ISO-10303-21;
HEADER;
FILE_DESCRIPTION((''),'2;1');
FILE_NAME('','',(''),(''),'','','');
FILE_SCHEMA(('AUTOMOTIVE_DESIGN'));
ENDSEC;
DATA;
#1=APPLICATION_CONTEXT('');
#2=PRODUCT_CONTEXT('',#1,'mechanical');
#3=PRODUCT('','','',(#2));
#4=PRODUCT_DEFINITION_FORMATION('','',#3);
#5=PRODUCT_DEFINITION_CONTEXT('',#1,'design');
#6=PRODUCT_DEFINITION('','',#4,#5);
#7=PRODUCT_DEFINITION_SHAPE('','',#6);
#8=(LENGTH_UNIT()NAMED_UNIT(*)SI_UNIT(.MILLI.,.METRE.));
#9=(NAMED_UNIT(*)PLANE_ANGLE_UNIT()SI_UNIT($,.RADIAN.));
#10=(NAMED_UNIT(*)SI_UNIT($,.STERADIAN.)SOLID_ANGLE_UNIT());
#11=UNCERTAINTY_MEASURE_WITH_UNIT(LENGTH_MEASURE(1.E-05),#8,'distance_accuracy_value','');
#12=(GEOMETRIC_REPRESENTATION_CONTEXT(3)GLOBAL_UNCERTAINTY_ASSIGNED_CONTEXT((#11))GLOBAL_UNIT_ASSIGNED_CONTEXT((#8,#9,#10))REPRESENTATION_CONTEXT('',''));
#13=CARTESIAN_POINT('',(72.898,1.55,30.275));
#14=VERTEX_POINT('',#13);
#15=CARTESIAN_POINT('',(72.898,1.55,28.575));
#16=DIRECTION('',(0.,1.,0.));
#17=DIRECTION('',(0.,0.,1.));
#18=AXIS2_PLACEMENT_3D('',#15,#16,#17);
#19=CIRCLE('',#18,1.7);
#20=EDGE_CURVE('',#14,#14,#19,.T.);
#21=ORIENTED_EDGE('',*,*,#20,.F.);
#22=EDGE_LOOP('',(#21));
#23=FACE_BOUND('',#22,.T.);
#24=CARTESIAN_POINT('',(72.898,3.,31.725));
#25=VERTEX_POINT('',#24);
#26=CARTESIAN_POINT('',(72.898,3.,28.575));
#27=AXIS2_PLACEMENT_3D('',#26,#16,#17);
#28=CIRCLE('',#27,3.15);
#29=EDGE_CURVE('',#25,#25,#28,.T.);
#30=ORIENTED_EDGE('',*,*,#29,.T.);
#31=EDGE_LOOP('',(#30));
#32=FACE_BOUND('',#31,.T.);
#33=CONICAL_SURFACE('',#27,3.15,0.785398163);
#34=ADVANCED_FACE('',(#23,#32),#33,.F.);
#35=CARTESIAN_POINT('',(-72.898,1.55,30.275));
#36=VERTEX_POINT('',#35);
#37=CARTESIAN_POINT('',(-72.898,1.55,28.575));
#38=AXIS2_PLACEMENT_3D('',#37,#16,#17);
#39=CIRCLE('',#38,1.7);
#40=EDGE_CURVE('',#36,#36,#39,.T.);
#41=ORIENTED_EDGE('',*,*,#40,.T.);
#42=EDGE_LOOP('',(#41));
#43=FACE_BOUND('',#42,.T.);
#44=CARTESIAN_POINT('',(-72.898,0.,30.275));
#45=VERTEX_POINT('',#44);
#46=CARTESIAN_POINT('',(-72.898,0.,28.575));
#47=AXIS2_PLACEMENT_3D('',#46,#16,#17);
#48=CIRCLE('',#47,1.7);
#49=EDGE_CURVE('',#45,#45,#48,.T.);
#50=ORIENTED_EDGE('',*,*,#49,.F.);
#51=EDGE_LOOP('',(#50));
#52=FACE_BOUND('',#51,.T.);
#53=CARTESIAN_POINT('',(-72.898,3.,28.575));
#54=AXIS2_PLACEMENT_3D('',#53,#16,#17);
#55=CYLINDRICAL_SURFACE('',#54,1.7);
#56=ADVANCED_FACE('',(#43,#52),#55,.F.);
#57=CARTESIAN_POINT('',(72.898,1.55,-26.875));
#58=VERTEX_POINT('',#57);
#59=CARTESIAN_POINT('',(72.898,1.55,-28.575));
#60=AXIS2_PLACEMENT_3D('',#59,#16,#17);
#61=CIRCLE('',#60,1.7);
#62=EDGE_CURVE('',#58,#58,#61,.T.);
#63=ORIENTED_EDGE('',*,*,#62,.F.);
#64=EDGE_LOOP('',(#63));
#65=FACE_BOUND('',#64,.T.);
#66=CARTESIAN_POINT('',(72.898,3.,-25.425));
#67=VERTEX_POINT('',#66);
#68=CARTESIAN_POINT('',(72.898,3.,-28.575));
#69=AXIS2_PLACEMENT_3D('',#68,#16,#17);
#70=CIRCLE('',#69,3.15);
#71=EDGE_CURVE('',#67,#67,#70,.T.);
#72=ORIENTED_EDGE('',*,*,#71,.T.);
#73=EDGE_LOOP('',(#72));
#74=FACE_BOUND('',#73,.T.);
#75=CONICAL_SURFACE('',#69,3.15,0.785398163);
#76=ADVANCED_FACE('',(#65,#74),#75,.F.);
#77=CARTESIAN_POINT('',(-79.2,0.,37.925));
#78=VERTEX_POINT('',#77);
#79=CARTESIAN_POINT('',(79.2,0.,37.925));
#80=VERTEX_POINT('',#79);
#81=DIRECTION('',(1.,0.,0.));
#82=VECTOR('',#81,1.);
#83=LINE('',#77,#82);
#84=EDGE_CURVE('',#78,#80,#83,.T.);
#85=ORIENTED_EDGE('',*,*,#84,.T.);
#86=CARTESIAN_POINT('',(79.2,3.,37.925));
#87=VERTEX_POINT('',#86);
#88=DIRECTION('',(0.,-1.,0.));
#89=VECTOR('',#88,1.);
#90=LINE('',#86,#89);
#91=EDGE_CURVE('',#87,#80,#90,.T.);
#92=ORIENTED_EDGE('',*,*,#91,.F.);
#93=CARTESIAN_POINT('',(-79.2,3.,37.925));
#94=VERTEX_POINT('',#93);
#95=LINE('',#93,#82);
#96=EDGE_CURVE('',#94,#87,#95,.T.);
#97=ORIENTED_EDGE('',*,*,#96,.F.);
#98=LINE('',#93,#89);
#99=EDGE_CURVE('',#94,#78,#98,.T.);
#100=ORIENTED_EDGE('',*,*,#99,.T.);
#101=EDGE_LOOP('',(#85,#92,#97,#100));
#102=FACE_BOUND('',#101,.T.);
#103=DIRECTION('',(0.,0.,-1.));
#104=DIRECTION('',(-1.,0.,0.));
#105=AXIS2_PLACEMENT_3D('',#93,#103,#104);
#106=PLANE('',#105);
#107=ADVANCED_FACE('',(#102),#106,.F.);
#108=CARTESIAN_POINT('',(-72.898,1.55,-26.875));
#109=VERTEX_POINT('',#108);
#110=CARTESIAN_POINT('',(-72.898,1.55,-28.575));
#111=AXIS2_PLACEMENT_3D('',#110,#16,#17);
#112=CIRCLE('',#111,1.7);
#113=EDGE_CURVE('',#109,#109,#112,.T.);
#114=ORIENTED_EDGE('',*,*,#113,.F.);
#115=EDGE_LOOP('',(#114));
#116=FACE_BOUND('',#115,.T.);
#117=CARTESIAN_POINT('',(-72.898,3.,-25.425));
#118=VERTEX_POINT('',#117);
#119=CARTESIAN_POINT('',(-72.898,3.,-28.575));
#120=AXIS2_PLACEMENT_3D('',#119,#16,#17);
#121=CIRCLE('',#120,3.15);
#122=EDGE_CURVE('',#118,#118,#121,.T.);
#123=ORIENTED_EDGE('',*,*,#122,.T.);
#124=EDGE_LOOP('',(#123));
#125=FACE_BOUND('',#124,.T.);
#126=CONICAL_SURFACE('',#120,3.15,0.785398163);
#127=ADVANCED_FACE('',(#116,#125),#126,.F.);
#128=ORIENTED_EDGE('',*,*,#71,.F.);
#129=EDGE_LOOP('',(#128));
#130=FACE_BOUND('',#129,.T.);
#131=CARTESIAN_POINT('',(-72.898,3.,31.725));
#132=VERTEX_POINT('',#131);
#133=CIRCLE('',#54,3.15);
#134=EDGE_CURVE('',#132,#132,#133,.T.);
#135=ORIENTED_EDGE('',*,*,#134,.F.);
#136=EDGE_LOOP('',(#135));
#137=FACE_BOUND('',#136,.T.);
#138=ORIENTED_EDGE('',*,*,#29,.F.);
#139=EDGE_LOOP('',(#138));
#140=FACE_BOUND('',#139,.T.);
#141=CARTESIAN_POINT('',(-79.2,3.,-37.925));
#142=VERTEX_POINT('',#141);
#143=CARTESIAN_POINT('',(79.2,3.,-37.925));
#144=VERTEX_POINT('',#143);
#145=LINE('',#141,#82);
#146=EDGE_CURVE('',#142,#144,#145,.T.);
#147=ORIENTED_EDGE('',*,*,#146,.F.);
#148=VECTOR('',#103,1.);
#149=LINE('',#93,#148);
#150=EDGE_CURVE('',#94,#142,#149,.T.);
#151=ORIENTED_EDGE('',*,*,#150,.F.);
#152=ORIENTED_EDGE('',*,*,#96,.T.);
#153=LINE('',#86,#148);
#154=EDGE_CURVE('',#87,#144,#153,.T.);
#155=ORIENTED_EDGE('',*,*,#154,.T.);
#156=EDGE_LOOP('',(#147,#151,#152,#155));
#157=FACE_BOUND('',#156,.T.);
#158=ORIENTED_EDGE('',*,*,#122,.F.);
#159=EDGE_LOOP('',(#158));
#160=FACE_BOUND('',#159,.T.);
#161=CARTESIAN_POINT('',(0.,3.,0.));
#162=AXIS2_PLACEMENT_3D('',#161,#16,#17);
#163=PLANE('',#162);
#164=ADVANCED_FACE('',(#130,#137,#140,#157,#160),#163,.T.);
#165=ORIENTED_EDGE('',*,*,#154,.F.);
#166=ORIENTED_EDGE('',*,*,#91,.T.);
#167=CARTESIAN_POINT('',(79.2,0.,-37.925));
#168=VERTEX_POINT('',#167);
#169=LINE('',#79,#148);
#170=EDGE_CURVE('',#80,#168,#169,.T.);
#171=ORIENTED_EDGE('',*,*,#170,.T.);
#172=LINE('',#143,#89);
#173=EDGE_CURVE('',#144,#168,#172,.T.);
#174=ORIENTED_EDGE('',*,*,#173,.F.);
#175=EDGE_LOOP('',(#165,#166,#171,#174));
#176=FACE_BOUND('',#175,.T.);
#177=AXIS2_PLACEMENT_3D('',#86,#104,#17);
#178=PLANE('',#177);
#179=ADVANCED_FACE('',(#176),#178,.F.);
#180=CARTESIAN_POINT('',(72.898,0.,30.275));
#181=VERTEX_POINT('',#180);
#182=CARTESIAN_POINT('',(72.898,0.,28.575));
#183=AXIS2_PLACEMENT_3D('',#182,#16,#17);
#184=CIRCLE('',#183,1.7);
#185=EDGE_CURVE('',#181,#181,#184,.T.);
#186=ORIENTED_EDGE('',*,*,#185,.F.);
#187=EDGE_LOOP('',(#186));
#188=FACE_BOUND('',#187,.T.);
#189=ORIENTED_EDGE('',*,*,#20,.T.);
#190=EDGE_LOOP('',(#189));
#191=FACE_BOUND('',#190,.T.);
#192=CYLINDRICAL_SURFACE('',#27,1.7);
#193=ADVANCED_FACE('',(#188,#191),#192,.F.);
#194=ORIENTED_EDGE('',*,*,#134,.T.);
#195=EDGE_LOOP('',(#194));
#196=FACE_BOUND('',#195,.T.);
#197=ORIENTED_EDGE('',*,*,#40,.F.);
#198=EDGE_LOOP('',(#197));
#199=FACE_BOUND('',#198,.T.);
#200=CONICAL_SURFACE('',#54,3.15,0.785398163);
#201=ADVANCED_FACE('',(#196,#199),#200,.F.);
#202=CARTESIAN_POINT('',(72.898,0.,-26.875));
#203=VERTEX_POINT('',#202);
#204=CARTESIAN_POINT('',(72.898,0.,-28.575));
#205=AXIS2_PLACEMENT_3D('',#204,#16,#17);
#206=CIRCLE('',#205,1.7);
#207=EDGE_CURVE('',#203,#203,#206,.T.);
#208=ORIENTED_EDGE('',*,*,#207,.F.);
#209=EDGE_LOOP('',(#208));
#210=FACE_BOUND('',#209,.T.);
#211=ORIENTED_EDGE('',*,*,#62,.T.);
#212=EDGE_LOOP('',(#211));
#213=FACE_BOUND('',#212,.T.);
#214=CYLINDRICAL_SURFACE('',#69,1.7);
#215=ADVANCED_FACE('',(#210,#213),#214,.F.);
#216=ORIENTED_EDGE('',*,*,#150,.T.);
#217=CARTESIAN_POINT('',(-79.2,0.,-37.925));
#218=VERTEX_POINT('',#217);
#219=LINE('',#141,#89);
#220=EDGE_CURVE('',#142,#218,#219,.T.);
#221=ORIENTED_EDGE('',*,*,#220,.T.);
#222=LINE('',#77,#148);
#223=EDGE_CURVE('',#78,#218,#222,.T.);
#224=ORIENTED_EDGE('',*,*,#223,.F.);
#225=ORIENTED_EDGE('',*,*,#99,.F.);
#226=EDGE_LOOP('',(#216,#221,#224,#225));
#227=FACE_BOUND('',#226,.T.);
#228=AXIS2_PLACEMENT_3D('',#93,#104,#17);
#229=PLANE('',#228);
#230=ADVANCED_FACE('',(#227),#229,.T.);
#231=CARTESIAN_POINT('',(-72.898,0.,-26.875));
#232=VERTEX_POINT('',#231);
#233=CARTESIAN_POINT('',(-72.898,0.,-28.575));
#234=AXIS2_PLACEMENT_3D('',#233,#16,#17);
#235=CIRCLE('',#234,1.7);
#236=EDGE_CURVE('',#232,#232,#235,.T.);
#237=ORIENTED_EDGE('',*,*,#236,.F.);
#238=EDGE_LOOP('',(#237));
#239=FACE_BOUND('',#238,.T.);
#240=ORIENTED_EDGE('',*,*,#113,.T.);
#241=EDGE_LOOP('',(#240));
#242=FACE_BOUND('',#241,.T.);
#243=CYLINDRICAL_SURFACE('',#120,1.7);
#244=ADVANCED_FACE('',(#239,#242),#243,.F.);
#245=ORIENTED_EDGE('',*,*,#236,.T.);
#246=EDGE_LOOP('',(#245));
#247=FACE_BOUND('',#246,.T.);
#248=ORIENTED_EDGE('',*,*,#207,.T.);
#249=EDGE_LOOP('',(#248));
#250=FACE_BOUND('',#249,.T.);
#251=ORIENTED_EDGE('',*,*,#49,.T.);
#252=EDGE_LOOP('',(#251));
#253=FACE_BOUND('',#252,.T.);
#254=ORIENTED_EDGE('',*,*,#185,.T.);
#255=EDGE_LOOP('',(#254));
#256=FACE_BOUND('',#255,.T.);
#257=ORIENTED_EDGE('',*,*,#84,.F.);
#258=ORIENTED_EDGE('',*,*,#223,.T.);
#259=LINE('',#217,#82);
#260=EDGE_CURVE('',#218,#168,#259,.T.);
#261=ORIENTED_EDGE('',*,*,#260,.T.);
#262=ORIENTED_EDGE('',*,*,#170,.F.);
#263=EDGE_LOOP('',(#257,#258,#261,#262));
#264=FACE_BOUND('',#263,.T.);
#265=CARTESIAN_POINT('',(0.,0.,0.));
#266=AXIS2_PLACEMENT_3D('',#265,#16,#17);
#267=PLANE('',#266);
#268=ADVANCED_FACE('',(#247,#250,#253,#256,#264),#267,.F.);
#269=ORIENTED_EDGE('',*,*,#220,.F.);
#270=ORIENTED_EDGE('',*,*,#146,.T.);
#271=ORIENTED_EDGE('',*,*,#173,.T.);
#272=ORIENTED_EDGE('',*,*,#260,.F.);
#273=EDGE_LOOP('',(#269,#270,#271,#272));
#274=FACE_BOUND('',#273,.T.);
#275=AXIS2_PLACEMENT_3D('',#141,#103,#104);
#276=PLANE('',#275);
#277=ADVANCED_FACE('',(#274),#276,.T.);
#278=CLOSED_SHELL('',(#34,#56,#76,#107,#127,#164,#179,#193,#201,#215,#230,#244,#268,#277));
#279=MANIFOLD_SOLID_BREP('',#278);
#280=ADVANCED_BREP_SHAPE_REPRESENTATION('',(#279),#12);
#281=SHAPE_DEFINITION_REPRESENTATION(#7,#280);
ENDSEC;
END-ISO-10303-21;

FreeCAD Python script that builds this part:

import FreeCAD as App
import Part
import Sketcher
Q = App.Units.Quantity


def add_polygon(sketch, points):
    """Adds a closed chain of lines whose ends are joined by coincident constraints."""
    first, n = sketch.GeometryCount, len(points)
    for a, b in zip(points, points[1:] + points[:1]):
        sketch.addGeometry(Part.LineSegment(App.Vector(*a, 0), App.Vector(*b, 0)), False)
    for i in range(n):
        sketch.addConstraint(Sketcher.Constraint("Coincident", first + i, 2, first + (i + 1) % n, 1))

doc = App.newDocument("Part")
body = doc.addObject("PartDesign::Body", "Body")

# Sketch on XZ plane
sketch1 = body.newObject("Sketcher::SketchObject", "Sketch")
sketch1.AttachmentSupport = (doc.getObject("XZ_Plane"), [""])
sketch1.MapMode = "FlatFace"
add_polygon(sketch1, [(-79, -38), (-79, 38), (79, 38), (79, -38)])  # lines 0-3
sketch1.addConstraint([
    Sketcher.Constraint("Vertical", 0),
    Sketcher.Constraint("Horizontal", 1),
    Sketcher.Constraint("Vertical", 2),
    Sketcher.Constraint("Horizontal", 3),
    Sketcher.Constraint("Symmetric", 0, 2, 2, 2, -1, 1),
    Sketcher.Constraint("DistanceX", 1, 1, 1, 2, 158.4),
    Sketcher.Constraint("DistanceY", 0, 1, 0, 2, 75.85),
])
pad1 = body.newObject("PartDesign::Pad", "Pad")
pad1.Profile = sketch1
pad1.Length = 3
pad1.Reversed = True

# Sketch on YZ plane
sketch2 = body.newObject("Sketcher::SketchObject", "Sketch001")
sketch2.AttachmentSupport = (doc.getObject("YZ_Plane"), [""])
sketch2.MapMode = "FlatFace"
sketch2.AttachmentOffset = App.Placement(App.Vector(0, 0, -72.898), App.Rotation())
add_polygon(sketch2, [(0, -28.6), (3, -28.6), (3, -25.4), (1.6, -26.9), (0, -26.9)])  # lines 0-4
sketch2.addGeometry(Part.LineSegment(App.Vector(3, -28.6, 0), App.Vector(0, -28.6, 0)), True)  # axis
sketch2.addConstraint([
    Sketcher.Constraint("Horizontal", 0),
    Sketcher.Constraint("Vertical", 1),
    Sketcher.Constraint("Horizontal", 3),
    Sketcher.Constraint("Vertical", 4),
    Sketcher.Constraint("Horizontal", 5),
    Sketcher.Constraint("Coincident", 5, 1, 0, 2),
    Sketcher.Constraint("PointOnObject", 3, 2, -2),
    Sketcher.Constraint("PointOnObject", 5, 2, -2),
    Sketcher.Constraint("DistanceX", 0, 1, 0, 2, 3.0),
    Sketcher.Constraint("Angle", 2, Q("-135 deg")),
    Sketcher.Constraint("DistanceY", 4, 2, 4, 1, 1.7),
    Sketcher.Constraint("DistanceX", 3, 2, 3, 1, 1.55),
    Sketcher.Constraint("DistanceY", 0, 2, -1, 1, 28.575),
])
groove = body.newObject("PartDesign::Groove", "Groove")
groove.Profile = sketch2
groove.ReferenceAxis = (sketch2, ["Axis0"])
groove.Angle = 360
doc.recompute()

linearpattern = body.newObject("PartDesign::LinearPattern", "LinearPattern")
linearpattern.Originals = [groove]
linearpattern.Direction = (doc.getObject("Z_Axis"), [""])
linearpattern.Mode = "offset"
linearpattern.Offset = 57.15
linearpattern.Occurrences = 2
body.Tip = linearpattern
doc.recompute()

datumline = body.newObject("PartDesign::Line", "DatumLine")
datumline.Placement = App.Placement(App.Vector(0, 0, 0), App.Rotation(App.Vector(0, 0, 1), App.Vector(0.931027237, 0, 0.364949701)))
linearpattern2 = body.newObject("PartDesign::LinearPattern", "LinearPattern001")
linearpattern2.Originals = [groove]
linearpattern2.Direction = (datumline, [""])
linearpattern2.Mode = "offset"
linearpattern2.Offset = 156.596922
linearpattern2.Occurrences = 2
body.Tip = linearpattern2
doc.recompute()

linearpattern3 = body.newObject("PartDesign::LinearPattern", "LinearPattern002")
linearpattern3.Originals = [groove]
linearpattern3.Direction = (doc.getObject("X_Axis"), [""])
linearpattern3.Mode = "offset"
linearpattern3.Offset = 145.796
linearpattern3.Occurrences = 2
body.Tip = linearpattern3

doc.recompute()
